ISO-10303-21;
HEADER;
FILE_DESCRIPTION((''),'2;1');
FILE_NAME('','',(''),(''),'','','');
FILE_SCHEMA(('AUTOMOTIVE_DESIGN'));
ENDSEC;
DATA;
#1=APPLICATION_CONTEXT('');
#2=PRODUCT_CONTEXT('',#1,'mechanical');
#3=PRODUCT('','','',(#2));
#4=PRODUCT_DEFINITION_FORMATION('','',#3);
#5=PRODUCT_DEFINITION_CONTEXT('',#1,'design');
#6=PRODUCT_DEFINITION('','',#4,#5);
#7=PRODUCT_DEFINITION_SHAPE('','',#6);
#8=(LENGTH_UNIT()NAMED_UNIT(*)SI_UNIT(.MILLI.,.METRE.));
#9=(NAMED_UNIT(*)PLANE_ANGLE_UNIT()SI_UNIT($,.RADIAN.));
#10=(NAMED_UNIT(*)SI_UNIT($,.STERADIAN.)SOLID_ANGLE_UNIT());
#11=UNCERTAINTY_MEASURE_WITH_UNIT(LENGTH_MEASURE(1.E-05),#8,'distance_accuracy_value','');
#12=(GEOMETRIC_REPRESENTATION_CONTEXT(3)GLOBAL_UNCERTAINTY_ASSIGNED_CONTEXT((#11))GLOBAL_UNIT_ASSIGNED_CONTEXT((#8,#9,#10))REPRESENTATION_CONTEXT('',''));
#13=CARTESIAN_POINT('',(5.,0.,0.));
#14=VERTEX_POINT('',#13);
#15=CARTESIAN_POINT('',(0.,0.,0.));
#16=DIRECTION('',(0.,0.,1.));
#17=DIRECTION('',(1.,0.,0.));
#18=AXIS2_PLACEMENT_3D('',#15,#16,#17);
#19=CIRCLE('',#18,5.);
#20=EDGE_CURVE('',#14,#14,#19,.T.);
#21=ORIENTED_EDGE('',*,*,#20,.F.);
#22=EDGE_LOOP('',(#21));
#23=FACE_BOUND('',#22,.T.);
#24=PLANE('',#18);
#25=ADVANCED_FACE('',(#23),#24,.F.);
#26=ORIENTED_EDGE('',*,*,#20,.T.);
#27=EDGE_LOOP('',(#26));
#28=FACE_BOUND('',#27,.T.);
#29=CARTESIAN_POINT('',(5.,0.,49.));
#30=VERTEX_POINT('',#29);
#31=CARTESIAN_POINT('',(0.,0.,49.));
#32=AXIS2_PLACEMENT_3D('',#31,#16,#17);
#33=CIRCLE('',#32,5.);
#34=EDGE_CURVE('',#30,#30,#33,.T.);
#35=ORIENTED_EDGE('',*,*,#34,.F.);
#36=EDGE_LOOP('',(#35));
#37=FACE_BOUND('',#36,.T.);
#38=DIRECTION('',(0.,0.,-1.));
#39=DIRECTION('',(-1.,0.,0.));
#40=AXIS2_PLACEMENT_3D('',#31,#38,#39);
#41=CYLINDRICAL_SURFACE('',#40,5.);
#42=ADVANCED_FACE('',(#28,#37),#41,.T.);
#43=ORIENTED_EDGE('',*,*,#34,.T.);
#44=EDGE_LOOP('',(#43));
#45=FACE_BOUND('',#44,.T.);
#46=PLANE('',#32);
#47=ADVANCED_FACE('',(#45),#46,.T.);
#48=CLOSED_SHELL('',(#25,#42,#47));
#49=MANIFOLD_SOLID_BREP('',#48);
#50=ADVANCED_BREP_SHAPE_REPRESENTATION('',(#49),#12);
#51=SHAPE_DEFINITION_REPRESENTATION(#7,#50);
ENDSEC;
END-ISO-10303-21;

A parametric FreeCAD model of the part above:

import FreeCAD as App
import Part
import Sketcher
Q = App.Units.Quantity

doc = App.newDocument("Part")
params = doc.addObject("Spreadsheet::Sheet", "Params")
for row, (alias, value) in enumerate([
    ("sketch1_diameter", "10 mm"),
    ("pad1_length", "49 mm"),
], start=1):
    params.set(f"A{row}", alias)
    params.set(f"B{row}", "=" + value)
    params.setAlias(f"B{row}", alias)

body = doc.addObject("PartDesign::Body", "Body")

# Sketch on XY plane
sketch1 = body.newObject("Sketcher::SketchObject", "Sketch")
sketch1.AttachmentSupport = (doc.getObject("XY_Plane"), [""])
sketch1.MapMode = "FlatFace"
sketch1.addGeometry(Part.Circle(App.Vector(0, 0, 0), App.Vector(0, 0, 1), 5), False)
sketch1.addConstraint(Sketcher.Constraint("Coincident", 0, 3, -1, 1))
sketch1.addConstraint(Sketcher.Constraint("Diameter", 0, Q("10 mm")))
sketch1.setExpression("Constraints[1]", "Params.sketch1_diameter")
pad1 = body.newObject("PartDesign::Pad", "Pad")
pad1.Profile = sketch1
pad1.setExpression("Length", "Params.pad1_length")

doc.recompute()
